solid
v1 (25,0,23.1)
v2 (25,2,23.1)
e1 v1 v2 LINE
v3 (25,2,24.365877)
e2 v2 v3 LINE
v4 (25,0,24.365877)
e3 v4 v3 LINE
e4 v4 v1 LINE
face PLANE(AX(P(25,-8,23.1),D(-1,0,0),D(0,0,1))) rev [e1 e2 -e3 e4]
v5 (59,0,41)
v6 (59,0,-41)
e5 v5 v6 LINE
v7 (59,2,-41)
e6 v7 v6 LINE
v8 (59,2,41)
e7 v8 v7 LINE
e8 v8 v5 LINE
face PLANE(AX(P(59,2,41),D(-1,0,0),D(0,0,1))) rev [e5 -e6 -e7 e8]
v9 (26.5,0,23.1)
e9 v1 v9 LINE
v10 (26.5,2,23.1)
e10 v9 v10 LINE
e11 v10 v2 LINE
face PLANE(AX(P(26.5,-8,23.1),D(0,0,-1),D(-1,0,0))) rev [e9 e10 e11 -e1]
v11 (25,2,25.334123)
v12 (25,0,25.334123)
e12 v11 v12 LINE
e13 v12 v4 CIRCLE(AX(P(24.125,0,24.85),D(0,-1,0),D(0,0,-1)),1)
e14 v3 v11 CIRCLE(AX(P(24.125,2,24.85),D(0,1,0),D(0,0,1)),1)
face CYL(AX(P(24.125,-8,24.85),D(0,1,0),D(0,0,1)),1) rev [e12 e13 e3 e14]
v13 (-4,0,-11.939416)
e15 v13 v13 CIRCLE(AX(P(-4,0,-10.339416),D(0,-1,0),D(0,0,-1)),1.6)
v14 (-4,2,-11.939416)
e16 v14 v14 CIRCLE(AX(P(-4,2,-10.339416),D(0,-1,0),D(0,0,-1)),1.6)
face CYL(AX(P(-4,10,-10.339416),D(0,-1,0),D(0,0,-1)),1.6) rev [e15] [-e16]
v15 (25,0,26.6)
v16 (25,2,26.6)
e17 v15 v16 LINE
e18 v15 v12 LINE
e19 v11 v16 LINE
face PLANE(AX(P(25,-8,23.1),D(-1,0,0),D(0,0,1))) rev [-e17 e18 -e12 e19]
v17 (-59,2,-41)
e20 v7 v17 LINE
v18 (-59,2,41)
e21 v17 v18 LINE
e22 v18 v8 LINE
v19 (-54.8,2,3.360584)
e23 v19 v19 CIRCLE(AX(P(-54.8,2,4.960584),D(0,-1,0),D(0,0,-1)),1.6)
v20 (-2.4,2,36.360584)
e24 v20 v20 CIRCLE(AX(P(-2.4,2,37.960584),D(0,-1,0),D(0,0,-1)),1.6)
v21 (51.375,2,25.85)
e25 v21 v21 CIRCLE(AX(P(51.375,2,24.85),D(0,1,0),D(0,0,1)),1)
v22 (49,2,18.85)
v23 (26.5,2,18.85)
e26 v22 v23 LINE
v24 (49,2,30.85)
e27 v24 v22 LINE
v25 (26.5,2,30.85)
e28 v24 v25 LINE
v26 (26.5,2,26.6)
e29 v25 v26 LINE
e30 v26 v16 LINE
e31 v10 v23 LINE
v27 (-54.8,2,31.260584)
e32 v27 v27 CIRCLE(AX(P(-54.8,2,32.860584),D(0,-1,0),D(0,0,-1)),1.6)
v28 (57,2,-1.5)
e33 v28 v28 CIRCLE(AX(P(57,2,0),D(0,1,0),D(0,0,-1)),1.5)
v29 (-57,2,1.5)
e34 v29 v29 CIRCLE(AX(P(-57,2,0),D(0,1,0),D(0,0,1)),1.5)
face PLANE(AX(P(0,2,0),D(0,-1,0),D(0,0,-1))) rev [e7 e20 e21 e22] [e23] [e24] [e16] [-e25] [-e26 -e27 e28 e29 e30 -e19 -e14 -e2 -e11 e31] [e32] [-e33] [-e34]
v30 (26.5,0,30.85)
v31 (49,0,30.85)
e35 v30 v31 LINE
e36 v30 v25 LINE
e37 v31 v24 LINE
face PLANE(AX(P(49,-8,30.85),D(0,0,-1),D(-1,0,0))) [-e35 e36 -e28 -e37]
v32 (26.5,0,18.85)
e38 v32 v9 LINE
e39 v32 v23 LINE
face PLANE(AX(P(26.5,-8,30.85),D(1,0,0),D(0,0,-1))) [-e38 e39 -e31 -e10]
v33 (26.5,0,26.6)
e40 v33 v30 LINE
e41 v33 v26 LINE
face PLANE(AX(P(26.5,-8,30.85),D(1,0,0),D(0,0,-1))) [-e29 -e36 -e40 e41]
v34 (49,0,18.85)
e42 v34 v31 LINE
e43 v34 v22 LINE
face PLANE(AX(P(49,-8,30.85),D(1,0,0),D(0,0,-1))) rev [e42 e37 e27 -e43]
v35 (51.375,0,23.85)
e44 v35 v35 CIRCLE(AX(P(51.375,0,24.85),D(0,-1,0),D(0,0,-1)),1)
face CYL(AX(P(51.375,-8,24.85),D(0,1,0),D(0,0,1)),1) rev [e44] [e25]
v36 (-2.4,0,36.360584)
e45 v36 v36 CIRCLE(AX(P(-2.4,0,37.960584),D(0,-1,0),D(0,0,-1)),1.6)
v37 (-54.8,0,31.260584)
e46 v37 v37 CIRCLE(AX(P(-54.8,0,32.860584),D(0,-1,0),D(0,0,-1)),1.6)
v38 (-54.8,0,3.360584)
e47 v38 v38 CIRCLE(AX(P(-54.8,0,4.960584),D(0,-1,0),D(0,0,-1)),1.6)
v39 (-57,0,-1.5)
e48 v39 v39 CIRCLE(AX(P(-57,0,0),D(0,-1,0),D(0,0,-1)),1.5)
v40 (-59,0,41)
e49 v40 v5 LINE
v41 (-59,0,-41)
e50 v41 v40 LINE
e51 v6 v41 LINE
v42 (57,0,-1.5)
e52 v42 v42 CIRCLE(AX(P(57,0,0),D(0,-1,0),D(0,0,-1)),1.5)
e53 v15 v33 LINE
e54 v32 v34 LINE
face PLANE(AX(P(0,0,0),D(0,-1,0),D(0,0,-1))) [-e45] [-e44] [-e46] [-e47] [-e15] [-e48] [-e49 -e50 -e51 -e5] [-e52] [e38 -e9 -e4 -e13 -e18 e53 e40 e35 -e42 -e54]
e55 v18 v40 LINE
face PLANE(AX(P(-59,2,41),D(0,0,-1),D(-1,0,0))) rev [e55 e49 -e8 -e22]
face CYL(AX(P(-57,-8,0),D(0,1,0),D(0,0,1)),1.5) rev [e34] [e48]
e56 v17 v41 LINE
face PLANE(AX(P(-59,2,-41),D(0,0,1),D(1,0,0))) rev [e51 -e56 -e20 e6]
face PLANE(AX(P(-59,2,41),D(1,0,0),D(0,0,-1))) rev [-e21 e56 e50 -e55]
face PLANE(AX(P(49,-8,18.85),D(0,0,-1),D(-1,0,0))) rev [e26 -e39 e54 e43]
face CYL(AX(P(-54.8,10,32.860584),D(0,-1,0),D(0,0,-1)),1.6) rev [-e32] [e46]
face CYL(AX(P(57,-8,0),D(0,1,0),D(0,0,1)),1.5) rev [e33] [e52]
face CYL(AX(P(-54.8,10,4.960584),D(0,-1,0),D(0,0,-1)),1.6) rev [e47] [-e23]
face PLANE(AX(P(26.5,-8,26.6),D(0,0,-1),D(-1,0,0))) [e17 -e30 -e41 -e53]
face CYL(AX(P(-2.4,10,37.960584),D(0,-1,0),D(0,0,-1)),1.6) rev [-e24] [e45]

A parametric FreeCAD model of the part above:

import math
import FreeCAD as App
import Part
import Sketcher

V = App.Vector


def add_polygon(sketch, points):
    """Adds a closed chain of lines whose ends are joined by coincident constraints."""
    first, n = sketch.GeometryCount, len(points)
    for a, b in zip(points, points[1:] + points[:1]):
        sketch.addGeometry(Part.LineSegment(App.Vector(*a, 0), App.Vector(*b, 0)), False)
    for i in range(n):
        sketch.addConstraint(Sketcher.Constraint("Coincident", first + i, 2, first + (i + 1) % n, 1))

doc = App.newDocument("Part")
body = doc.addObject("PartDesign::Body", "Body")

# Sketch on XZ plane
sketch1 = body.newObject("Sketcher::SketchObject", "Sketch")
sketch1.AttachmentSupport = (doc.getObject("XZ_Plane"), [""])
sketch1.MapMode = "FlatFace"
add_polygon(sketch1, [(-59, -41), (-59, 41), (59, 41), (59, -41)])  # lines 0-3
sketch1.addConstraint([
    Sketcher.Constraint("Vertical", 0),
    Sketcher.Constraint("Horizontal", 1),
    Sketcher.Constraint("Vertical", 2),
    Sketcher.Constraint("Horizontal", 3),
    Sketcher.Constraint("Symmetric", 0, 2, 2, 2, -1, 1),
    Sketcher.Constraint("DistanceX", 1, 1, 1, 2, 118.0),
    Sketcher.Constraint("DistanceY", 0, 1, 0, 2, 82.0),
])
pad1 = body.newObject("PartDesign::Pad", "Pad")
pad1.Profile = sketch1
pad1.Length = 2
pad1.Reversed = True

# Sketch on XZ plane
sketch2 = body.newObject("Sketcher::SketchObject", "Sketch001")
sketch2.AttachmentSupport = (doc.getObject("XZ_Plane"), [""])
sketch2.MapMode = "FlatFace"
sketch2.AttachmentOffset = App.Placement(V(0, 0, -2), App.Rotation())
sketch2.addGeometry([
    Part.Circle(V(-57, 0, 0), V(0, 0, 1), 1.5),
    Part.Circle(V(57, 0, 0), V(0, 0, 1), 1.5),
], False)
sketch2.addConstraint([
    Sketcher.Constraint("Equal", 0, 1),
    Sketcher.Constraint("Symmetric", 0, 3, 1, 3, -1, 1),
    Sketcher.Constraint("PointOnObject", 0, 3, -1),
    Sketcher.Constraint("Diameter", 0, 3.0),
    Sketcher.Constraint("DistanceX", 0, 3, -1, 1, 57.0),
])
pocket1 = body.newObject("PartDesign::Pocket", "Pocket")
pocket1.Profile = sketch2
pocket1.Length = 10
pocket1.Reversed = True

# Sketch on XZ plane
sketch3 = body.newObject("Sketcher::SketchObject", "Sketch002")
sketch3.AttachmentSupport = (doc.getObject("XZ_Plane"), [""])
sketch3.MapMode = "FlatFace"
sketch3.addGeometry([
    Part.Circle(V(-2.4, 38, 0), V(0, 0, 1), 1.6),
    Part.Circle(V(-54.8, 32.9, 0), V(0, 0, 1), 1.6),
    Part.Circle(V(-4, -10.3, 0), V(0, 0, 1), 1.6),
    Part.Circle(V(-54.8, 5, 0), V(0, 0, 1), 1.6),
], False)
sketch3.addConstraint([
    Sketcher.Constraint("Equal", 0, 1),
    Sketcher.Constraint("Equal", 1, 2),
    Sketcher.Constraint("Equal", 2, 3),
    Sketcher.Constraint("Vertical", 1, 3, 3, 3),
    Sketcher.Constraint("Diameter", 0, 3.2),
    Sketcher.Constraint("DistanceX", 2, 3, -1, 1, 4.0),
    Sketcher.Constraint("DistanceY", 3, 3, 0, 3, 33.0),
    Sketcher.Constraint("DistanceX", 0, 3, -1, 1, 2.4),
    Sketcher.Constraint("DistanceX", 1, 3, -1, 1, 54.8),
    Sketcher.Constraint("DistanceY", 1, 3, 0, 3, 5.1),
    Sketcher.Constraint("DistanceY", 2, 3, 0, 3, 48.3),
    Sketcher.Constraint("DistanceY", -1, 1, 0, 3, 37.960584),
])
pocket2 = body.newObject("PartDesign::Pocket", "Pocket001")
pocket2.Profile = sketch3
pocket2.Length = 10

# Sketch on XZ plane
sketch4 = body.newObject("Sketcher::SketchObject", "Sketch003")
sketch4.AttachmentSupport = (doc.getObject("XZ_Plane"), [""])
sketch4.MapMode = "FlatFace"
sketch4.AttachmentOffset = App.Placement(V(0, 0, -2), App.Rotation())
sketch4.addGeometry([
    Part.LineSegment(V(25, 25.3, 0), V(25, 26.6, 0)),  # 0
    Part.LineSegment(V(25, 26.6, 0), V(26.5, 26.6, 0)),  # 1
    Part.LineSegment(V(26.5, 26.6, 0), V(26.5, 23.1, 0)),  # 2
    Part.LineSegment(V(26.5, 23.1, 0), V(25, 23.1, 0)),  # 3
    Part.LineSegment(V(25, 23.1, 0), V(25, 24.4, 0)),  # 4
    Part.ArcOfCircle(Part.Circle(V(24.1, 24.9, 0), V(0, 0, 1), 1), math.radians(29), math.radians(331)),  # 5
    Part.Circle(V(51.4, 24.9, 0), V(0, 0, 1), 1),  # 6
], False)
sketch4.addConstraint([
    Sketcher.Constraint("Coincident", 0, 2, 1, 1),
    Sketcher.Constraint("Coincident", 1, 2, 2, 1),
    Sketcher.Constraint("Coincident", 2, 2, 3, 1),
    Sketcher.Constraint("Coincident", 3, 2, 4, 1),
    Sketcher.Constraint("Coincident", 4, 2, 5, 2),
    Sketcher.Constraint("Coincident", 5, 1, 0, 1),
    Sketcher.Constraint("Vertical", 0),
    Sketcher.Constraint("Horizontal", 1),
    Sketcher.Constraint("Vertical", 2),
    Sketcher.Constraint("Horizontal", 3),
    Sketcher.Constraint("Vertical", 4),
    Sketcher.Constraint("Equal", 5, 6),
    Sketcher.Constraint("Horizontal", 5, 3, 6, 3),
    Sketcher.Constraint("Vertical", 0, 2, 3, 2),
    Sketcher.Constraint("Equal", 0, 4),
    Sketcher.Constraint("Diameter", 6, 2.0),
    Sketcher.Constraint("DistanceX", 1, 1, 1, 2, 1.5),
    Sketcher.Constraint("DistanceY", 2, 2, 2, 1, 3.5),
    Sketcher.Constraint("DistanceX", -1, 1, 0, 2, 25.0),
    Sketcher.Constraint("DistanceY", -1, 1, 0, 2, 26.6),
    Sketcher.Constraint("DistanceX", 5, 3, 6, 3, 27.25),
    Sketcher.Constraint("DistanceX", -1, 1, 5, 3, 24.125),
])
pocket3 = body.newObject("PartDesign::Pocket", "Pocket002")
pocket3.Profile = sketch4
pocket3.Length = 10
pocket3.Reversed = True

# Sketch on XZ plane
sketch5 = body.newObject("Sketcher::SketchObject", "Sketch004")
sketch5.AttachmentSupport = (doc.getObject("XZ_Plane"), [""])
sketch5.MapMode = "FlatFace"
sketch5.AttachmentOffset = App.Placement(V(0, 0, -2), App.Rotation())
add_polygon(sketch5, [(26, 19), (26, 31), (49, 31), (49, 19)])  # lines 0-3
sketch5.addConstraint([
    Sketcher.Constraint("Vertical", 0),
    Sketcher.Constraint("Horizontal", 1),
    Sketcher.Constraint("Vertical", 2),
    Sketcher.Constraint("Horizontal", 3),
    Sketcher.Constraint("DistanceY", 0, 1, 0, 2, 12.0),
    Sketcher.Constraint("DistanceX", 1, 1, 1, 2, 22.5),
    Sketcher.Constraint("DistanceX", -1, 1, 1, 2, 49.0),
    Sketcher.Constraint("DistanceY", -1, 1, 0, 2, 30.85),
])
pocket4 = body.newObject("PartDesign::Pocket", "Pocket003")
pocket4.Profile = sketch5
pocket4.Length = 10
pocket4.Reversed = True

doc.recompute()
